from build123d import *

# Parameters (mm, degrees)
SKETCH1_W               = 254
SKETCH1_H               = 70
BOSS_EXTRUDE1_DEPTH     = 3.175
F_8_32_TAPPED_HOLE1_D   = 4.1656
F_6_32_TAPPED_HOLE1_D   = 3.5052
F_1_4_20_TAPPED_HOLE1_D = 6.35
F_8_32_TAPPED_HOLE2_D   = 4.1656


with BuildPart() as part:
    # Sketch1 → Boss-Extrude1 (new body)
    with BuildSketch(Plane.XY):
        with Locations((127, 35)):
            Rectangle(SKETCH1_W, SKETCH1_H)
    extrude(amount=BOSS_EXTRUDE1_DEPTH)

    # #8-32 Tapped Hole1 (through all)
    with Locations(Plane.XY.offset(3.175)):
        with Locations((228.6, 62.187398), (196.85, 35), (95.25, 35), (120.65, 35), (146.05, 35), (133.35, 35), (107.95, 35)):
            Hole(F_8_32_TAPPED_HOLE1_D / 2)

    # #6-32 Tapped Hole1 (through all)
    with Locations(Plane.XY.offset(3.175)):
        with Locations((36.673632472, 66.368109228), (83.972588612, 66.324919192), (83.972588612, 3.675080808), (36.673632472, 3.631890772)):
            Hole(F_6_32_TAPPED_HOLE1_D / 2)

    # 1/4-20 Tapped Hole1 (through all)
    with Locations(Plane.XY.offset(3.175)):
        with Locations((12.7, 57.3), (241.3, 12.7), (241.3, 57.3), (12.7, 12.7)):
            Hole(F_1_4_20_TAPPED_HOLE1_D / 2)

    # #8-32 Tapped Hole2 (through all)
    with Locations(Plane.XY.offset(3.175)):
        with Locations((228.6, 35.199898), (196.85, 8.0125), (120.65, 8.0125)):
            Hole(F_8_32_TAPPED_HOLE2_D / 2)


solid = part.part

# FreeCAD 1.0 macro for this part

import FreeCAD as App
import Part
import Sketcher
from FreeCAD import Vector
Q = App.Units.Quantity


def add_polygon(sketch, points):
    """Adds a closed chain of lines whose ends are joined by coincident constraints."""
    first, n = sketch.GeometryCount, len(points)
    for a, b in zip(points, points[1:] + points[:1]):
        sketch.addGeometry(Part.LineSegment(App.Vector(*a, 0), App.Vector(*b, 0)), False)
    for i in range(n):
        sketch.addConstraint(Sketcher.Constraint("Coincident", first + i, 2, first + (i + 1) % n, 1))

doc = App.newDocument("Part")
params = doc.addObject("Spreadsheet::Sheet", "Params")
for row, (alias, value) in enumerate([
    ("sketch1_width", "10 in"),
    ("pad1_length", "0.125 in"),
    ("sketch2_diameter", "0.164 in"),
    ("hole_diameter", "0.164 in"),
    ("sketch3_diameter", "0.138 in"),
    ("hole2_diameter", "0.138 in"),
    ("sketch4_diameter", "0.25 in"),
    ("hole3_diameter", "0.25 in"),
    ("sketch5_diameter", "0.164 in"),
    ("hole4_diameter", "0.164 in"),
], start=1):
    params.set(f"A{row}", alias)
    params.set(f"B{row}", "=" + value)
    params.setAlias(f"B{row}", alias)

body = doc.addObject("PartDesign::Body", "Body")

# Sketch on XY plane
sketch1 = body.newObject("Sketcher::SketchObject", "Sketch")
sketch1.AttachmentSupport = (doc.getObject("XY_Plane"), [""])
sketch1.MapMode = "FlatFace"
add_polygon(sketch1, [(0, 70), (0, 0), (254, 0), (254, 70)])  # lines 0-3
sketch1.addConstraint(Sketcher.Constraint("Vertical", 0))
sketch1.addConstraint(Sketcher.Constraint("Horizontal", 1))
sketch1.addConstraint(Sketcher.Constraint("Vertical", 2))
sketch1.addConstraint(Sketcher.Constraint("Horizontal", 3))
sketch1.addConstraint(Sketcher.Constraint("Coincident", 0, 2, -1, 1))
sketch1.addConstraint(Sketcher.Constraint("DistanceX", 1, 1, 1, 2, Q("10 in")))
sketch1.addConstraint(Sketcher.Constraint("DistanceY", 0, 2, 0, 1, 70.0))
sketch1.setExpression("Constraints[9]", "Params.sketch1_width")
pad1 = body.newObject("PartDesign::Pad", "Pad")
pad1.Profile = sketch1
pad1.setExpression("Length", "Params.pad1_length")

# Sketch on XY plane
sketch2 = body.newObject("Sketcher::SketchObject", "Sketch001")
sketch2.AttachmentSupport = (doc.getObject("XY_Plane"), [""])
sketch2.MapMode = "FlatFace"
sketch2.AttachmentOffset = App.Placement(Vector(0, 0, 0.125 * 25.4), App.Rotation())
sketch2.addGeometry(Part.Circle(Vector(228.6, 62.2, 0), Vector(0, 0, 1), 2.1), False)
sketch2.addGeometry(Part.Circle(Vector(196.8, 35, 0), Vector(0, 0, 1), 2.1), False)
sketch2.addGeometry(Part.Circle(Vector(95.2, 35, 0), Vector(0, 0, 1), 2.1), False)
sketch2.addGeometry(Part.Circle(Vector(120.7, 35, 0), Vector(0, 0, 1), 2.1), False)
sketch2.addGeometry(Part.Circle(Vector(146.1, 35, 0), Vector(0, 0, 1), 2.1), False)
sketch2.addGeometry(Part.Circle(Vector(133.3, 35, 0), Vector(0, 0, 1), 2.1), False)
sketch2.addGeometry(Part.Circle(Vector(108, 35, 0), Vector(0, 0, 1), 2.1), False)
sketch2.addConstraint(Sketcher.Constraint("Equal", 0, 1))
sketch2.addConstraint(Sketcher.Constraint("Equal", 1, 2))
sketch2.addConstraint(Sketcher.Constraint("Equal", 2, 3))
sketch2.addConstraint(Sketcher.Constraint("Equal", 3, 4))
sketch2.addConstraint(Sketcher.Constraint("Equal", 4, 5))
sketch2.addConstraint(Sketcher.Constraint("Equal", 5, 6))
sketch2.addConstraint(Sketcher.Constraint("Horizontal", 1, 3, 2, 3))
sketch2.addConstraint(Sketcher.Constraint("Horizontal", 2, 3, 3, 3))
sketch2.addConstraint(Sketcher.Constraint("Horizontal", 3, 3, 4, 3))
sketch2.addConstraint(Sketcher.Constraint("Horizontal", 4, 3, 5, 3))
sketch2.addConstraint(Sketcher.Constraint("Horizontal", 5, 3, 6, 3))
sketch2.addConstraint(Sketcher.Constraint("Diameter", 0, Q("0.164 in")))
sketch2.addConstraint(Sketcher.Constraint("DistanceX", -1, 1, 0, 3, Q("9 in")))
sketch2.addConstraint(Sketcher.Constraint("DistanceX", 2, 3, 1, 3, Q("4 in")))
sketch2.addConstraint(Sketcher.Constraint("DistanceX", 2, 3, 3, 3, Q("1 in")))
sketch2.addConstraint(Sketcher.Constraint("DistanceX", 3, 3, 4, 3, Q("1 in")))
sketch2.addConstraint(Sketcher.Constraint("DistanceX", 6, 3, 5, 3, Q("1 in")))
sketch2.addConstraint(Sketcher.Constraint("DistanceX", 3, 3, 5, 3, Q("0.5 in")))
sketch2.addConstraint(Sketcher.Constraint("DistanceX", -1, 1, 1, 3, Q("7.75 in")))
sketch2.addConstraint(Sketcher.Constraint("DistanceY", -1, 1, 0, 3, 62.187398))
sketch2.addConstraint(Sketcher.Constraint("DistanceY", -1, 1, 1, 3, 35.0))
sketch2.setExpression("Constraints[11]", "Params.sketch2_diameter")
doc.recompute()
hole = body.newObject("PartDesign::Hole", "Hole")
hole.Profile = sketch2
hole.ThreadType = "None"
hole.setExpression("Diameter", "Params.hole_diameter")
hole.DepthType = "ThroughAll"

# Sketch on XY plane
sketch3 = body.newObject("Sketcher::SketchObject", "Sketch002")
sketch3.AttachmentSupport = (doc.getObject("XY_Plane"), [""])
sketch3.MapMode = "FlatFace"
sketch3.AttachmentOffset = App.Placement(Vector(0, 0, 0.125 * 25.4), App.Rotation())
sketch3.addGeometry(Part.Circle(Vector(36.7, 66.4, 0), Vector(0, 0, 1), 1.8), False)
sketch3.addGeometry(Part.Circle(Vector(84, 66.3, 0), Vector(0, 0, 1), 1.8), False)
sketch3.addGeometry(Part.Circle(Vector(84, 3.7, 0), Vector(0, 0, 1), 1.8), False)
sketch3.addGeometry(Part.Circle(Vector(36.7, 3.6, 0), Vector(0, 0, 1), 1.8), False)
sketch3.addConstraint(Sketcher.Constraint("Equal", 0, 1))
sketch3.addConstraint(Sketcher.Constraint("Equal", 1, 2))
sketch3.addConstraint(Sketcher.Constraint("Equal", 2, 3))
sketch3.addConstraint(Sketcher.Constraint("Vertical", 1, 3, 2, 3))
sketch3.addConstraint(Sketcher.Constraint("Vertical", 0, 3, 3, 3))
sketch3.addConstraint(Sketcher.Constraint("Diameter", 0, Q("0.138 in")))
sketch3.addConstraint(Sketcher.Constraint("DistanceY", -1, 1, 0, 3, 66.368109))
sketch3.addConstraint(Sketcher.Constraint("DistanceX", -1, 1, 1, 3, 83.972589))
sketch3.addConstraint(Sketcher.Constraint("DistanceY", -1, 1, 1, 3, 66.324919))
sketch3.addConstraint(Sketcher.Constraint("DistanceY", -1, 1, 2, 3, 3.675081))
sketch3.addConstraint(Sketcher.Constraint("DistanceY", -1, 1, 3, 3, 3.631891))
sketch3.addConstraint(Sketcher.Constraint("DistanceX", -1, 1, 0, 3, 36.673632))
sketch3.setExpression("Constraints[5]", "Params.sketch3_diameter")
doc.recompute()
hole2 = body.newObject("PartDesign::Hole", "Hole001")
hole2.Profile = sketch3
hole2.ThreadType = "None"
hole2.setExpression("Diameter", "Params.hole2_diameter")
hole2.DepthType = "ThroughAll"

# Sketch on XY plane
sketch4 = body.newObject("Sketcher::SketchObject", "Sketch003")
sketch4.AttachmentSupport = (doc.getObject("XY_Plane"), [""])
sketch4.MapMode = "FlatFace"
sketch4.AttachmentOffset = App.Placement(Vector(0, 0, 0.125 * 25.4), App.Rotation())
sketch4.addGeometry(Part.Circle(Vector(12.7, 57.3, 0), Vector(0, 0, 1), 3.2), False)
sketch4.addGeometry(Part.Circle(Vector(241.3, 12.7, 0), Vector(0, 0, 1), 3.2), False)
sketch4.addGeometry(Part.Circle(Vector(241.3, 57.3, 0), Vector(0, 0, 1), 3.2), False)
sketch4.addGeometry(Part.Circle(Vector(12.7, 12.7, 0), Vector(0, 0, 1), 3.2), False)
sketch4.addConstraint(Sketcher.Constraint("Equal", 0, 1))
sketch4.addConstraint(Sketcher.Constraint("Equal", 1, 2))
sketch4.addConstraint(Sketcher.Constraint("Equal", 2, 3))
sketch4.addConstraint(Sketcher.Constraint("Horizontal", 0, 3, 2, 3))
sketch4.addConstraint(Sketcher.Constraint("Horizontal", 1, 3, 3, 3))
sketch4.addConstraint(Sketcher.Constraint("Vertical", 1, 3, 2, 3))
sketch4.addConstraint(Sketcher.Constraint("Vertical", 0, 3, 3, 3))
sketch4.addConstraint(Sketcher.Constraint("Diameter", 0, Q("0.25 in")))
sketch4.addConstraint(Sketcher.Constraint("DistanceX", 0, 3, 1, 3, Q("9 in")))
sketch4.addConstraint(Sketcher.Constraint("DistanceX", -1, 1, 0, 3, Q("0.5 in")))
sketch4.addConstraint(Sketcher.Constraint("DistanceY", -1, 1, 1, 3, Q("0.5 in")))
sketch4.addConstraint(Sketcher.Constraint("DistanceY", -1, 1, 0, 3, 57.3))
sketch4.setExpression("Constraints[7]", "Params.sketch4_diameter")
doc.recompute()
hole3 = body.newObject("PartDesign::Hole", "Hole002")
hole3.Profile = sketch4
hole3.ThreadType = "None"
hole3.setExpression("Diameter", "Params.hole3_diameter")
hole3.DepthType = "ThroughAll"

# Sketch on XY plane
sketch5 = body.newObject("Sketcher::SketchObject", "Sketch004")
sketch5.AttachmentSupport = (doc.getObject("XY_Plane"), [""])
sketch5.MapMode = "FlatFace"
sketch5.AttachmentOffset = App.Placement(Vector(0, 0, 0.125 * 25.4), App.Rotation())
sketch5.addGeometry(Part.Circle(Vector(228.6, 35.2, 0), Vector(0, 0, 1), 2.1), False)
sketch5.addGeometry(Part.Circle(Vector(196.8, 8, 0), Vector(0, 0, 1), 2.1), False)
sketch5.addGeometry(Part.Circle(Vector(120.7, 8, 0), Vector(0, 0, 1), 2.1), False)
sketch5.addConstraint(Sketcher.Constraint("Equal", 0, 1))
sketch5.addConstraint(Sketcher.Constraint("Equal", 1, 2))
sketch5.addConstraint(Sketcher.Constraint("Horizontal", 1, 3, 2, 3))
sketch5.addConstraint(Sketcher.Constraint("Diameter", 0, Q("0.164 in")))
sketch5.addConstraint(Sketcher.Constraint("DistanceX", -1, 1, 0, 3, Q("9 in")))
sketch5.addConstraint(Sketcher.Constraint("DistanceX", 2, 3, 1, 3, Q("3 in")))
sketch5.addConstraint(Sketcher.Constraint("DistanceX", -1, 1, 1, 3, Q("7.75 in")))
sketch5.addConstraint(Sketcher.Constraint("DistanceY", -1, 1, 1, 3, 8.0125))
sketch5.addConstraint(Sketcher.Constraint("DistanceY", -1, 1, 0, 3, 35.199898))
sketch5.setExpression("Constraints[3]", "Params.sketch5_diameter")
doc.recompute()
hole4 = body.newObject("PartDesign::Hole", "Hole003")
hole4.Profile = sketch5
hole4.ThreadType = "None"
hole4.setExpression("Diameter", "Params.hole4_diameter")
hole4.DepthType = "ThroughAll"

doc.recompute()
